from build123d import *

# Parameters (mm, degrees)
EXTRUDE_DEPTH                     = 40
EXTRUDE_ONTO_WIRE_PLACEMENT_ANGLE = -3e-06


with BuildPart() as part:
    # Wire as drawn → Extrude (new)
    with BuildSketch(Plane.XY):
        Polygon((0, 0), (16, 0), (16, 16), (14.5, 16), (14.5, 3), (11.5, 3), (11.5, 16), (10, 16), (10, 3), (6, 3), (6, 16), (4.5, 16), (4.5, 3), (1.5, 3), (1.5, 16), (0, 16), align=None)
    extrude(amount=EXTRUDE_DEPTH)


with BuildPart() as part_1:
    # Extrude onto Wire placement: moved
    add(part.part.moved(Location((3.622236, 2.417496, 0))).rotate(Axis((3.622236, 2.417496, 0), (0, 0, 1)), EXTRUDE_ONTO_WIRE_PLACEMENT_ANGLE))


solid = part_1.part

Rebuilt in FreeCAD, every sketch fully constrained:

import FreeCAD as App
import Part
import Sketcher

V = App.Vector
Q = App.Units.Quantity


def add_polygon(sketch, points):
    """Adds a closed chain of lines whose ends are joined by coincident constraints."""
    first, n = sketch.GeometryCount, len(points)
    for a, b in zip(points, points[1:] + points[:1]):
        sketch.addGeometry(Part.LineSegment(App.Vector(*a, 0), App.Vector(*b, 0)), False)
    for i in range(n):
        sketch.addConstraint(Sketcher.Constraint("Coincident", first + i, 2, first + (i + 1) % n, 1))

doc = App.newDocument("Part")
body = doc.addObject("PartDesign::Body", "Body")

sketch1 = body.newObject("Sketcher::SketchObject", "Sketch")
sketch1.AttachmentSupport = (doc.getObject("XY_Plane"), [""])
sketch1.MapMode = "FlatFace"
add_polygon(sketch1, [(0, 0), (16, 0), (16, 16), (14.5, 16), (14.5, 3), (11.5, 3), (11.5, 16), (10, 16), (10, 3), (6, 3), (6, 16), (4.5, 16), (4.5, 3), (1.5, 3), (1.5, 16), (0, 16)])
sketch1.addConstraint([
    Sketcher.Constraint("Horizontal", 0),
    Sketcher.Constraint("Vertical", 1),
    Sketcher.Constraint("Horizontal", 2),
    Sketcher.Constraint("Vertical", 3),
    Sketcher.Constraint("Horizontal", 4),
    Sketcher.Constraint("Vertical", 5),
    Sketcher.Constraint("Horizontal", 6),
    Sketcher.Constraint("Vertical", 7),
    Sketcher.Constraint("Horizontal", 8),
    Sketcher.Constraint("Vertical", 9),
    Sketcher.Constraint("Horizontal", 10),
    Sketcher.Constraint("Vertical", 11),
    Sketcher.Constraint("Horizontal", 12),
    Sketcher.Constraint("Vertical", 13),
    Sketcher.Constraint("Horizontal", 14),
    Sketcher.Constraint("Vertical", 15),
    Sketcher.Constraint("Coincident", 15, 2, -1, 1),
    Sketcher.Constraint("Horizontal", 2, 2, 5, 2),
    Sketcher.Constraint("Horizontal", 4, 2, 7, 2),
    Sketcher.Constraint("Horizontal", 6, 2, 9, 2),
    Sketcher.Constraint("Horizontal", 8, 2, 11, 2),
    Sketcher.Constraint("Horizontal", 10, 2, 13, 2),
    Sketcher.Constraint("Equal", 2, 6),
    Sketcher.Constraint("Equal", 6, 10),
    Sketcher.Constraint("Equal", 4, 12),
    Sketcher.Constraint("Equal", 10, 14),
    Sketcher.Constraint("Equal", 0, 1),
    Sketcher.Constraint("DistanceX", 0, 1, 0, 2, Q("16 mm")),
    Sketcher.Constraint("DistanceX", 4, 2, 4, 1, Q("3 mm")),
    Sketcher.Constraint("DistanceX", 8, 2, 8, 1, Q("4 mm")),
    Sketcher.Constraint("DistanceY", 3, 2, 3, 1, Q("13 mm")),
])
pad1 = body.newObject("PartDesign::Pad", "Pad")
pad1.Profile = sketch1
pad1.Length = 40
body2 = doc.addObject("PartDesign::Body", "Body001")
doc.recompute()

body.Placement = App.Placement(V(3.622236, 2.417496, 0), App.Rotation(V(0, 0, 1), 359.999997))
boolean = body2.newObject("PartDesign::Boolean", "Boolean")
boolean.Type = "Fuse"
boolean.addObjects([body])

doc.recompute()
